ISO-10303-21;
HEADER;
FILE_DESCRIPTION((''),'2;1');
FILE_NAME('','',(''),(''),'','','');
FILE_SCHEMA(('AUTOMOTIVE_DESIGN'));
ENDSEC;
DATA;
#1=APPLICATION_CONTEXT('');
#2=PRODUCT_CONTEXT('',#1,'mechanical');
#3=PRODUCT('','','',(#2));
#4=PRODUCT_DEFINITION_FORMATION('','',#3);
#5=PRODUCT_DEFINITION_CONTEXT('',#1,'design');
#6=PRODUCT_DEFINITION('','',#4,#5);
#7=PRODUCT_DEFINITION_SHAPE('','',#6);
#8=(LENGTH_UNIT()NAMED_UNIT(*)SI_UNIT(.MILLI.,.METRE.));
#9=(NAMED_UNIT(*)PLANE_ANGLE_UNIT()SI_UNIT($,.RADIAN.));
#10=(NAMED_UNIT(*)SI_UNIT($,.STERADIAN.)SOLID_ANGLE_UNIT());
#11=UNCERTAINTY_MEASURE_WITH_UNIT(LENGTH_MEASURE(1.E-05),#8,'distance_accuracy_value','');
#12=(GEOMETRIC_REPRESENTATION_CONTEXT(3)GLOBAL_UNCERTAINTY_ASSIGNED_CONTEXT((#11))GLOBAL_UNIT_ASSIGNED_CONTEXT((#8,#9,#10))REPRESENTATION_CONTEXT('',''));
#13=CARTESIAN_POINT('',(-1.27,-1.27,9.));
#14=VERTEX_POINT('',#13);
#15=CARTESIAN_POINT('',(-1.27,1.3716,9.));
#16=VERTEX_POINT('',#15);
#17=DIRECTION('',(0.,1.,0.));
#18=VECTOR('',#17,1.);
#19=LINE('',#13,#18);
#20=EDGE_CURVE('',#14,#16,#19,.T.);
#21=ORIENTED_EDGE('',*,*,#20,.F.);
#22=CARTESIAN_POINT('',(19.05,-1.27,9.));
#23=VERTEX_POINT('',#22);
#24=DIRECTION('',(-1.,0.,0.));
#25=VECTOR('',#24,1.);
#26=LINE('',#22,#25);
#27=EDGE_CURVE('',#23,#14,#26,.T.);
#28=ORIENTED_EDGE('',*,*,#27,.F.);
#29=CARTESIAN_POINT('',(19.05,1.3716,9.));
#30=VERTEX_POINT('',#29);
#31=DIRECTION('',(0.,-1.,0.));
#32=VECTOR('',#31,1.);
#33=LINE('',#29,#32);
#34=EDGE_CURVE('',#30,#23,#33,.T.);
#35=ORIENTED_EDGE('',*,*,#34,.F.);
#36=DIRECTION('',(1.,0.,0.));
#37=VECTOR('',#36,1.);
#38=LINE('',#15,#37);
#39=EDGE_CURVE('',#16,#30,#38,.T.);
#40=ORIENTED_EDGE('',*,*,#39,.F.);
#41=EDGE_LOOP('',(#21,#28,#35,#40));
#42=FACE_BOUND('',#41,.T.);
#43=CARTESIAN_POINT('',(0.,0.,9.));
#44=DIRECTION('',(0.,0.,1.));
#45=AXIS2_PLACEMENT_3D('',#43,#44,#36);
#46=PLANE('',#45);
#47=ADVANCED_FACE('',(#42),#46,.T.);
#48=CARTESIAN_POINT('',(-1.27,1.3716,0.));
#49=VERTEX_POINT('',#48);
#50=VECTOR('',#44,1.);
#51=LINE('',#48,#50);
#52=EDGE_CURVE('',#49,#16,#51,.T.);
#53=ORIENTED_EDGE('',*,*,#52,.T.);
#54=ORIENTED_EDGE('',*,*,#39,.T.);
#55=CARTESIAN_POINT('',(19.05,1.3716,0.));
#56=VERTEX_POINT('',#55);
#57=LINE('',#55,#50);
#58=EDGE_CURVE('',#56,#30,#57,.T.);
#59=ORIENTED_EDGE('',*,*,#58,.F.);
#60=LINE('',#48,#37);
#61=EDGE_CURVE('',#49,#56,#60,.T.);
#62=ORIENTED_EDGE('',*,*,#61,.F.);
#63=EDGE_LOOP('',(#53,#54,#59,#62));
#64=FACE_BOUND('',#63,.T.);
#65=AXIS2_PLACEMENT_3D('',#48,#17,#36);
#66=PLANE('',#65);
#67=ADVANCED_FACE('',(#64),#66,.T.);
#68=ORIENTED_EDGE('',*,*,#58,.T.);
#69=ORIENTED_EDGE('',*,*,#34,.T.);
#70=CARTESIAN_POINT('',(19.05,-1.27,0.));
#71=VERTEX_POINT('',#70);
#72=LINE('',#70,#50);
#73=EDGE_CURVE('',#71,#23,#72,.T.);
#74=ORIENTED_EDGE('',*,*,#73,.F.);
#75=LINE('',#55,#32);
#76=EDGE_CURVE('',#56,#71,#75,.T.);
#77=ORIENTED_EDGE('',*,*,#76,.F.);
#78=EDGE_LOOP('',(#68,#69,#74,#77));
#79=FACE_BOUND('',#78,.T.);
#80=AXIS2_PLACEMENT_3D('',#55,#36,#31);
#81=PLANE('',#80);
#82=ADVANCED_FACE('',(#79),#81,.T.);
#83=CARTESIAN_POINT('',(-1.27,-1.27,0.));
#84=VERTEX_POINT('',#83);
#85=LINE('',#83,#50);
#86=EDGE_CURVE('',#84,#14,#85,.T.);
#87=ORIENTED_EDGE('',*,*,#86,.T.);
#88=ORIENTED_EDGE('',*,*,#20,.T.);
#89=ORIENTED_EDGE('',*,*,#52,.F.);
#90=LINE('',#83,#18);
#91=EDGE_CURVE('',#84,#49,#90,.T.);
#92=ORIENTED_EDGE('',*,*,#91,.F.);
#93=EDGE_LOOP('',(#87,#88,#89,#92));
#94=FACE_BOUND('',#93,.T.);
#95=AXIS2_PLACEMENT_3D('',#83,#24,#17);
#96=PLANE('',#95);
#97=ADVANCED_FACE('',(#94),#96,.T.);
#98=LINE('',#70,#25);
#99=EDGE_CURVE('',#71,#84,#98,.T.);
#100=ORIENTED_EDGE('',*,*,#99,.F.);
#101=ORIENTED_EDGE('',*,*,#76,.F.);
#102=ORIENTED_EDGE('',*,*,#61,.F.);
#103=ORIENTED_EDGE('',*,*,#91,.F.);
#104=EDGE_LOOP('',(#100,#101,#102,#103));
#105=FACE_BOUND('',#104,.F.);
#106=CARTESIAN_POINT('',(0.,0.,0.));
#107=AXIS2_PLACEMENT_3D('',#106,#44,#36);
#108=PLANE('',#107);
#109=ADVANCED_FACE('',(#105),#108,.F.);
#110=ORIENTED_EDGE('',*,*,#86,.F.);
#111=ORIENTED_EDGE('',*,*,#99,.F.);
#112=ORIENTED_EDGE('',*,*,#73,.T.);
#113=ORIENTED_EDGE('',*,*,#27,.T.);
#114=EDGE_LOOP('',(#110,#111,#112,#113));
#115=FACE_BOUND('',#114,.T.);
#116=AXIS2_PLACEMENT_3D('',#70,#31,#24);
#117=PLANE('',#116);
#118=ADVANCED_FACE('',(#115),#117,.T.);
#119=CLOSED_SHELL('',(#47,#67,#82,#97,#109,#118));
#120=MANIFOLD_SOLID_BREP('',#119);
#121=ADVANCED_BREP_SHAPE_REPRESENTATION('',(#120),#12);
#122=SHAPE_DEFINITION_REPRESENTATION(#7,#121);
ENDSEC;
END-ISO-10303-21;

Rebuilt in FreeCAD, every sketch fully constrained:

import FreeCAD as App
import Part
import Sketcher
Q = App.Units.Quantity

doc = App.newDocument("Part")
body = doc.addObject("PartDesign::Body", "Body")

# Sketch on XY plane
sketch1 = doc.addObject("Sketcher::SketchObject", "Sketch")
body.addObject(sketch1)
sketch1.AttachmentSupport = (doc.XY_Plane, [""])
sketch1.MapMode = "FlatFace"
sketch1.addGeometry([
    Part.LineSegment(App.Vector(19.05, 1.3716, 0), App.Vector(-1.27, 1.3716, 0)),
    Part.LineSegment(App.Vector(-1.27, 1.3716, 0), App.Vector(-1.27, -1.27, 0)),
    Part.LineSegment(App.Vector(-1.27, -1.27, 0), App.Vector(19.05, -1.27, 0)),
    Part.LineSegment(App.Vector(19.05, -1.27, 0), App.Vector(19.05, 1.3716, 0)),
], False)
sketch1.addConstraint([
    Sketcher.Constraint("Coincident", 0, 2, 1, 1),
    Sketcher.Constraint("Coincident", 1, 2, 2, 1),
    Sketcher.Constraint("Coincident", 2, 2, 3, 1),
    Sketcher.Constraint("Coincident", 3, 2, 0, 1),
    Sketcher.Constraint("Horizontal", 0),
    Sketcher.Constraint("Vertical", 1),
    Sketcher.Constraint("Horizontal", 2),
    Sketcher.Constraint("Vertical", 3),
    Sketcher.Constraint("DistanceX", 0, 2, 0, 1, Q("0.8 in")),
    Sketcher.Constraint("DistanceY", 1, 2, 1, 1, Q("0.104 in")),
    Sketcher.Constraint("DistanceX", 0, 2, -1, 1, Q("0.05 in")),
    Sketcher.Constraint("DistanceY", 1, 2, -1, 1, Q("0.05 in")),
])
pad1 = doc.addObject("PartDesign::Pad", "Pad")
body.addObject(pad1)
pad1.Profile = sketch1
pad1.Length = 9

doc.recompute()
